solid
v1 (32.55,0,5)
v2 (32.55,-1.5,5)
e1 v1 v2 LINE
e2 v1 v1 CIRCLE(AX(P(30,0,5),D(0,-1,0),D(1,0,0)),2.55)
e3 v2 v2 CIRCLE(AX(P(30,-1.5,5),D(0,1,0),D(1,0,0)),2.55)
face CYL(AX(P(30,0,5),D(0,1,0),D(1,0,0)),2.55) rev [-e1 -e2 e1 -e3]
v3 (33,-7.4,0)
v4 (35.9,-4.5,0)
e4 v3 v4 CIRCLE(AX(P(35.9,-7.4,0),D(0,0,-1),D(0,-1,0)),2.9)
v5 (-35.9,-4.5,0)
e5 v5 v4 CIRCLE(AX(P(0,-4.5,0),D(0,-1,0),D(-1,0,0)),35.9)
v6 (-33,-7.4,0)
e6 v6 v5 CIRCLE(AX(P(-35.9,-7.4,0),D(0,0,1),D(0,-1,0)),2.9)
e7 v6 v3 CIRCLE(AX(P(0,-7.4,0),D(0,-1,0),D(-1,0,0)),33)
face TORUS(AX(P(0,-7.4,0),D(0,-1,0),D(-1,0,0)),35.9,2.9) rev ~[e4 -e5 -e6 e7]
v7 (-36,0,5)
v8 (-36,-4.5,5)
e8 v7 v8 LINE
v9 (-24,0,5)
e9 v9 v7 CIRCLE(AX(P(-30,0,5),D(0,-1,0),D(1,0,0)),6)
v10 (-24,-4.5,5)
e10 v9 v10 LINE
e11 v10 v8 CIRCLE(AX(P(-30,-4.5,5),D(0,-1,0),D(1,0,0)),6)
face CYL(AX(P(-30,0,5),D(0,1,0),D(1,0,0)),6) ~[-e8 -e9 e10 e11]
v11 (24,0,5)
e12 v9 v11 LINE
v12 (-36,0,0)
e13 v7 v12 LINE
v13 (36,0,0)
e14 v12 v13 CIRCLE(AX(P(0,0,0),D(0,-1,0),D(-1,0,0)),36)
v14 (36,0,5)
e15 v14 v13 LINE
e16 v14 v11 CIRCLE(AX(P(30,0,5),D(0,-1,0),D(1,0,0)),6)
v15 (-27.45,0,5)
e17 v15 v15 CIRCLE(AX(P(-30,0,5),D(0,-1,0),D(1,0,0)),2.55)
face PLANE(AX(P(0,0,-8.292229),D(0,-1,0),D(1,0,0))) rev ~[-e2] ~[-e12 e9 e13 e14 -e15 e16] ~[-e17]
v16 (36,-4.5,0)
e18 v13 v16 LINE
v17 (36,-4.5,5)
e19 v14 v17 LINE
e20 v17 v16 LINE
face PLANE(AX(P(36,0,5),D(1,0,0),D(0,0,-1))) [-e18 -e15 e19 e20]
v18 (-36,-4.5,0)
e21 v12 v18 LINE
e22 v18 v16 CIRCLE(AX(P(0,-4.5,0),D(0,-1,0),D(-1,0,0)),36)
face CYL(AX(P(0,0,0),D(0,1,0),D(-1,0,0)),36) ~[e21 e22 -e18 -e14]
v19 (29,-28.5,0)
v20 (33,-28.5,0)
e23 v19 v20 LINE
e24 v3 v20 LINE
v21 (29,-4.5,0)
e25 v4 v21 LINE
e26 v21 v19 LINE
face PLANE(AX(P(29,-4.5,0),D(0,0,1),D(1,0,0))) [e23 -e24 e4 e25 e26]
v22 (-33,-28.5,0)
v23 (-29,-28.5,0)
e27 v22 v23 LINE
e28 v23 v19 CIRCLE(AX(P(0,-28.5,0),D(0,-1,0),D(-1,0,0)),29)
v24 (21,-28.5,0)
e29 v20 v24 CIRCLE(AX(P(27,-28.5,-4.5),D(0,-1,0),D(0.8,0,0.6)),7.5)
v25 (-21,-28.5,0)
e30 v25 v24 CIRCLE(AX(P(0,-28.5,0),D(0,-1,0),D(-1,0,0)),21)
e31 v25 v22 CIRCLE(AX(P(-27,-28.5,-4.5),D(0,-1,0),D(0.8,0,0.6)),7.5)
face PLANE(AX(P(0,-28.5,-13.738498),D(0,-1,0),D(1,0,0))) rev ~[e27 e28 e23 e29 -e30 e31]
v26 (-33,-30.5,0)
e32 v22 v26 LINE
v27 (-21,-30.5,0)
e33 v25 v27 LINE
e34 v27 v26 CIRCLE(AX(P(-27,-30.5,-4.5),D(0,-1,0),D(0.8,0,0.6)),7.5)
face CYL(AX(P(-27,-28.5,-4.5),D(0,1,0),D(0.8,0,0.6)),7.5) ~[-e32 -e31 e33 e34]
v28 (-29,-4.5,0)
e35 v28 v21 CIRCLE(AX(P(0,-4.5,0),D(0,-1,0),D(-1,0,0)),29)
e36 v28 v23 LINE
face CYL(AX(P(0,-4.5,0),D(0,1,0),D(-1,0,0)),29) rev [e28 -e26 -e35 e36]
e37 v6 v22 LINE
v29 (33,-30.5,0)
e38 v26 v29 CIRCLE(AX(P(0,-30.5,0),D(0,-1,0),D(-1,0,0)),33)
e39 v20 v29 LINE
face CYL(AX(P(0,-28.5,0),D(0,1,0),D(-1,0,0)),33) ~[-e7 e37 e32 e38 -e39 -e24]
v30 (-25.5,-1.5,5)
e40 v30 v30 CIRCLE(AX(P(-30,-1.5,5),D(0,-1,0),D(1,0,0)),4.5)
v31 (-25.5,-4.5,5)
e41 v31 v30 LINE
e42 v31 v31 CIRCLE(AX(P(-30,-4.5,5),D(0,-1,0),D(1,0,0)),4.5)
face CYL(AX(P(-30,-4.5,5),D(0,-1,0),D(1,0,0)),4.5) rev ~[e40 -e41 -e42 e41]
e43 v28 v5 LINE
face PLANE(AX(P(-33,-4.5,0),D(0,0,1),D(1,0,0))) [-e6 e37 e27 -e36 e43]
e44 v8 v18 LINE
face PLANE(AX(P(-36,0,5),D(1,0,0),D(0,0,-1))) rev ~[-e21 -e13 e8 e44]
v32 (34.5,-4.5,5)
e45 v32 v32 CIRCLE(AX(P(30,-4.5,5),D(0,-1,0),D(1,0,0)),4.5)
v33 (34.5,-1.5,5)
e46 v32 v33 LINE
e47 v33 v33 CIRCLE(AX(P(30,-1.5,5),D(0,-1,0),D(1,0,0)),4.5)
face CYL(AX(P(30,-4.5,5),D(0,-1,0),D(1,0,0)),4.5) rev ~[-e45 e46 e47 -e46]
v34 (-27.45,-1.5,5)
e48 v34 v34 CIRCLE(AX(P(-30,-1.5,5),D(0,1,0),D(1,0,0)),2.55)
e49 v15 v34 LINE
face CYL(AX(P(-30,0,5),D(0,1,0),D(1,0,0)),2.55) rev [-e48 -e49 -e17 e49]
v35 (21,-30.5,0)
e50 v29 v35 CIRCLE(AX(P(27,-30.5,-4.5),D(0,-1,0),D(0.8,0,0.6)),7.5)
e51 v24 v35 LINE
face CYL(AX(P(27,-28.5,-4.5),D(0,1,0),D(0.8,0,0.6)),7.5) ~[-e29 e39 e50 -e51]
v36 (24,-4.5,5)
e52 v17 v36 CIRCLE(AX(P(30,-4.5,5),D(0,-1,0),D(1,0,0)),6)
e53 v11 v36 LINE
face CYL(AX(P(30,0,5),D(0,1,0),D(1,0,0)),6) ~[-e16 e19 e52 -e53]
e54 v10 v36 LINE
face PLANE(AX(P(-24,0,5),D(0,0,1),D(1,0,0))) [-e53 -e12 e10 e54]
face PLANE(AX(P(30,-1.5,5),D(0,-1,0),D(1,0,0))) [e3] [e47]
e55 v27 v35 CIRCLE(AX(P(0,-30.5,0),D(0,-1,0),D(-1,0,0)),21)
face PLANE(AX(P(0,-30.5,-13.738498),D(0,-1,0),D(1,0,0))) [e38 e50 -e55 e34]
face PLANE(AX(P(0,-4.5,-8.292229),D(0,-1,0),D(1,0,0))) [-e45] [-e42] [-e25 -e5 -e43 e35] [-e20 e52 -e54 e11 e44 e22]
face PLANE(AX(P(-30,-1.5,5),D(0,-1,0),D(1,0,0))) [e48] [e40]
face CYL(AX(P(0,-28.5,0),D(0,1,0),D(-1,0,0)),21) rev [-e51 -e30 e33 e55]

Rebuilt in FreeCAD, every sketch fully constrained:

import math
import FreeCAD as App
import Part
import Sketcher
from FreeCAD import Vector
Q = App.Units.Quantity


def edges_at(feature, points):
    """Names of the edges that pass closest to the given points."""
    edges = feature.Shape.Edges
    near = lambda p: min(range(len(edges)), key=lambda i: edges[i].distToShape(Part.Vertex(*p))[0])
    return sorted({f"Edge{near(p) + 1}" for p in points})

doc = App.newDocument("Part")
body = doc.addObject("PartDesign::Body", "Body")

# Sketch on XZ plane
sketch1 = body.newObject("Sketcher::SketchObject", "Sketch")
sketch1.AttachmentSupport = (doc.getObject("XZ_Plane"), [""])
sketch1.MapMode = "FlatFace"
sketch1.addGeometry(Part.LineSegment(Vector(-36, 5, 0), Vector(-36, 0, 0)), False)
sketch1.addGeometry(Part.ArcOfCircle(Part.Circle(Vector(0, 0, 0), Vector(0, 0, 1), 36), math.radians(180), math.radians(360)), False)
sketch1.addGeometry(Part.LineSegment(Vector(36, 0, 0), Vector(36, 5, 0)), False)
sketch1.addGeometry(Part.ArcOfCircle(Part.Circle(Vector(30, 5, 0), Vector(0, 0, 1), 6), math.radians(0), math.radians(180)), False)
sketch1.addGeometry(Part.LineSegment(Vector(24, 5, 0), Vector(-24, 5, 0)), False)
sketch1.addGeometry(Part.ArcOfCircle(Part.Circle(Vector(-30, 5, 0), Vector(0, 0, 1), 6), math.radians(0), math.radians(180)), False)
sketch1.addGeometry(Part.Circle(Vector(-30, 5, 0), Vector(0, 0, 1), 2.5), False)
sketch1.addGeometry(Part.Circle(Vector(30, 5, 0), Vector(0, 0, 1), 2.5), False)
sketch1.addConstraint(Sketcher.Constraint("Tangent", 0, 2, 1, 1))
sketch1.addConstraint(Sketcher.Constraint("Tangent", 1, 2, 2, 1))
sketch1.addConstraint(Sketcher.Constraint("Tangent", 2, 2, 3, 1))
sketch1.addConstraint(Sketcher.Constraint("Coincident", 3, 2, 4, 1))
sketch1.addConstraint(Sketcher.Constraint("Coincident", 4, 2, 5, 1))
sketch1.addConstraint(Sketcher.Constraint("Tangent", 5, 2, 0, 1))
sketch1.addConstraint(Sketcher.Constraint("Vertical", 0))
sketch1.addConstraint(Sketcher.Constraint("Vertical", 2))
sketch1.addConstraint(Sketcher.Constraint("Horizontal", 4))
sketch1.addConstraint(Sketcher.Constraint("Coincident", 1, 3, -1, 1))
sketch1.addConstraint(Sketcher.Constraint("Coincident", 6, 3, 5, 3))
sketch1.addConstraint(Sketcher.Constraint("Coincident", 7, 3, 3, 3))
sketch1.addConstraint(Sketcher.Constraint("Equal", 3, 5))
sketch1.addConstraint(Sketcher.Constraint("Equal", 6, 7))
sketch1.addConstraint(Sketcher.Constraint("Horizontal", 3, 3, 5, 3))
sketch1.addConstraint(Sketcher.Constraint("Horizontal", 2, 2, 3, 2))
sketch1.addConstraint(Sketcher.Constraint("Radius", 1, Q("36 mm")))
sketch1.addConstraint(Sketcher.Constraint("Radius", 3, Q("6 mm")))
sketch1.addConstraint(Sketcher.Constraint("Diameter", 6, Q("5.1 mm")))
sketch1.addConstraint(Sketcher.Constraint("DistanceY", 0, 2, 0, 1, Q("5 mm")))
pad1 = body.newObject("PartDesign::Pad", "Pad")
pad1.Profile = sketch1
pad1.Length = 4.5

# Sketch on XZ plane
sketch2 = body.newObject("Sketcher::SketchObject", "Sketch001")
sketch2.AttachmentSupport = (doc.getObject("XZ_Plane"), [""])
sketch2.MapMode = "FlatFace"
sketch2.AttachmentOffset = App.Placement(Vector(0, 0, 4.5), App.Rotation())
sketch2.addGeometry(Part.ArcOfCircle(Part.Circle(Vector(0, 0, 0), Vector(0, 0, 1), 33), math.radians(180), math.radians(360)), False)
sketch2.addGeometry(Part.LineSegment(Vector(33, 0, 0), Vector(29, 0, 0)), False)
sketch2.addGeometry(Part.ArcOfCircle(Part.Circle(Vector(0, 0, 0), Vector(0, 0, 1), 29), math.radians(180), math.radians(360)), False)
sketch2.addGeometry(Part.LineSegment(Vector(-29, 0, 0), Vector(-33, 0, 0)), False)
sketch2.addConstraint(Sketcher.Constraint("Coincident", 0, 2, 1, 1))
sketch2.addConstraint(Sketcher.Constraint("Coincident", 1, 2, 2, 2))
sketch2.addConstraint(Sketcher.Constraint("Coincident", 2, 1, 3, 1))
sketch2.addConstraint(Sketcher.Constraint("Coincident", 3, 2, 0, 1))
sketch2.addConstraint(Sketcher.Constraint("Horizontal", 1))
sketch2.addConstraint(Sketcher.Constraint("Horizontal", 3))
sketch2.addConstraint(Sketcher.Constraint("Coincident", 0, 3, -1, 1))
sketch2.addConstraint(Sketcher.Constraint("Coincident", 2, 3, -1, 1))
sketch2.addConstraint(Sketcher.Constraint("PointOnObject", 0, 2, -1))
sketch2.addConstraint(Sketcher.Constraint("PointOnObject", 2, 1, -1))
sketch2.addConstraint(Sketcher.Constraint("Radius", 0, Q("33 mm")))
sketch2.addConstraint(Sketcher.Constraint("Radius", 2, Q("29 mm")))
pad2 = body.newObject("PartDesign::Pad", "Pad001")
pad2.Profile = sketch2
pad2.Length = 24

# Sketch on XZ plane
sketch3 = body.newObject("Sketcher::SketchObject", "Sketch002")
sketch3.AttachmentSupport = (doc.getObject("XZ_Plane"), [""])
sketch3.MapMode = "FlatFace"
sketch3.AttachmentOffset = App.Placement(Vector(0, 0, 28.5), App.Rotation())
sketch3.addGeometry(Part.ArcOfCircle(Part.Circle(Vector(0, 0, 0), Vector(0, 0, 1), 33), math.radians(180), math.radians(360)), False)
sketch3.addGeometry(Part.ArcOfCircle(Part.Circle(Vector(27, -4, 0), Vector(0, 0, 1), 8), math.radians(37), math.radians(143)), False)
sketch3.addGeometry(Part.ArcOfCircle(Part.Circle(Vector(0, 0, 0), Vector(0, 0, 1), 21), math.radians(180), math.radians(360)), False)
sketch3.addGeometry(Part.ArcOfCircle(Part.Circle(Vector(-27, -4, 0), Vector(0, 0, 1), 8), math.radians(37), math.radians(143)), False)
sketch3.addConstraint(Sketcher.Constraint("Coincident", 0, 2, 1, 1))
sketch3.addConstraint(Sketcher.Constraint("Coincident", 1, 2, 2, 2))
sketch3.addConstraint(Sketcher.Constraint("Coincident", 2, 1, 3, 1))
sketch3.addConstraint(Sketcher.Constraint("Coincident", 3, 2, 0, 1))
sketch3.addConstraint(Sketcher.Constraint("Coincident", 0, 3, -1, 1))
sketch3.addConstraint(Sketcher.Constraint("Coincident", 2, 3, -1, 1))
sketch3.addConstraint(Sketcher.Constraint("Equal", 1, 3))
sketch3.addConstraint(Sketcher.Constraint("Symmetric", 1, 3, 3, 3, -2))
sketch3.addConstraint(Sketcher.Constraint("PointOnObject", 0, 2, -1))
sketch3.addConstraint(Sketcher.Constraint("PointOnObject", 1, 2, -1))
sketch3.addConstraint(Sketcher.Constraint("Radius", 0, Q("33 mm")))
sketch3.addConstraint(Sketcher.Constraint("Radius", 2, Q("21 mm")))
sketch3.addConstraint(Sketcher.Constraint("Radius", 1, Q("7.5 mm")))
pad3 = body.newObject("PartDesign::Pad", "Pad002")
pad3.Profile = sketch3
pad3.Length = 2

# Sketch on XZ plane
sketch4 = body.newObject("Sketcher::SketchObject", "Sketch003")
sketch4.AttachmentSupport = (doc.getObject("XZ_Plane"), [""])
sketch4.MapMode = "FlatFace"
sketch4.AttachmentOffset = App.Placement(Vector(0, 0, 4.5), App.Rotation())
sketch4.addGeometry(Part.Circle(Vector(-30, 5, 0), Vector(0, 0, 1), 4.5), False)
sketch4.addGeometry(Part.Circle(Vector(30, 5, 0), Vector(0, 0, 1), 4.5), False)
sketch4.addConstraint(Sketcher.Constraint("Equal", 0, 1))
sketch4.addConstraint(Sketcher.Constraint("Symmetric", 0, 3, 1, 3, -2))
sketch4.addConstraint(Sketcher.Constraint("Diameter", 0, Q("9 mm")))
sketch4.addConstraint(Sketcher.Constraint("DistanceX", 0, 3, -1, 1, Q("30 mm")))
sketch4.addConstraint(Sketcher.Constraint("DistanceY", -1, 1, 0, 3, Q("5 mm")))
pocket1 = body.newObject("PartDesign::Pocket", "Pocket")
pocket1.Profile = sketch4
pocket1.Length = 3
doc.recompute()

fillet = body.newObject("PartDesign::Fillet", "Fillet")
fillet.Base = (pocket1, edges_at(pocket1, [(0, -4.5, -33)]))
fillet.Radius = 2.9

doc.recompute()
